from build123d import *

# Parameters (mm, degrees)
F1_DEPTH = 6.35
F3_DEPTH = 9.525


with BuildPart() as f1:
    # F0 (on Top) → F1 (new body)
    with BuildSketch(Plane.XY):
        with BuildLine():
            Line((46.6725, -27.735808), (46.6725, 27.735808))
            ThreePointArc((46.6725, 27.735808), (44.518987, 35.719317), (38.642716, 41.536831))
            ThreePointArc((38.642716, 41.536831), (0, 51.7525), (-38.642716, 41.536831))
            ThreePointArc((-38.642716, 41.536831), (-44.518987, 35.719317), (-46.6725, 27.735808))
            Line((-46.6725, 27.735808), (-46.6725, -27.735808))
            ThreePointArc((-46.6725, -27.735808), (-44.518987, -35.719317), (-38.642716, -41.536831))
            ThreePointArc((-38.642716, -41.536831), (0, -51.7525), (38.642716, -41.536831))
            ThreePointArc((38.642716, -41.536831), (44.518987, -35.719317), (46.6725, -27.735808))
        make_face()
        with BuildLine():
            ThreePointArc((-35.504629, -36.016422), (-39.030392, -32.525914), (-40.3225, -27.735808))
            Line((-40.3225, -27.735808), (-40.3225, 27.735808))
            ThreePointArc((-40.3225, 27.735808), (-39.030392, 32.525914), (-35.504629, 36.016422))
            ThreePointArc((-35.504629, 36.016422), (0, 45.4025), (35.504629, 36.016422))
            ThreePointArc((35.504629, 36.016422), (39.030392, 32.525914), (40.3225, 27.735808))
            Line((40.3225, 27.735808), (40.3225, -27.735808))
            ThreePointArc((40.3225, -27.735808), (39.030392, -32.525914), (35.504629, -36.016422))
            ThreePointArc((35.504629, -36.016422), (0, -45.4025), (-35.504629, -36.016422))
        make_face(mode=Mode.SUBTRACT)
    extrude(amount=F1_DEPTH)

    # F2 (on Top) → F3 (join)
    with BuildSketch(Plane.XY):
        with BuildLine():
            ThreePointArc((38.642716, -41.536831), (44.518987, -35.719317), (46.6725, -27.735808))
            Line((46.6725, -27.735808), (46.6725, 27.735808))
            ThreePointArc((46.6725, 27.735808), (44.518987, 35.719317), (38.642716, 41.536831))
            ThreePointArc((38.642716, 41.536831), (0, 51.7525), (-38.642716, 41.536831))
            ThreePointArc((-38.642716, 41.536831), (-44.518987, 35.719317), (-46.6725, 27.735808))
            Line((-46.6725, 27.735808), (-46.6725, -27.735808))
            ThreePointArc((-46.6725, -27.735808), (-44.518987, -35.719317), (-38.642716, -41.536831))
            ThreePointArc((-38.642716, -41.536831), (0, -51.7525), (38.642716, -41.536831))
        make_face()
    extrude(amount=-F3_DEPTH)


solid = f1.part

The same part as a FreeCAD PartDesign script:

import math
import FreeCAD as App
import Part
import Sketcher
from FreeCAD import Vector
Q = App.Units.Quantity

doc = App.newDocument("Part")
params = doc.addObject("Spreadsheet::Sheet", "Params")
for row, (alias, value) in enumerate([
    ("sketch1_radius", "0.6250001 in"),
    ("sketch1_radius2", "0.375 in"),
    ("pad1_length", "0.25 in"),
    ("sketch2_radius", "0.6250001 in"),
    ("pad2_length", "0.375 in"),
], start=1):
    params.set(f"A{row}", alias)
    params.set(f"B{row}", "=" + value)
    params.setAlias(f"B{row}", alias)

body = doc.addObject("PartDesign::Body", "Body")

# Sketch on XY plane
sketch1 = body.newObject("Sketcher::SketchObject", "Sketch")
sketch1.AttachmentSupport = (doc.getObject("XY_Plane"), [""])
sketch1.MapMode = "FlatFace"
sketch1.addGeometry([
    Part.LineSegment(Vector(47, -28, 0), Vector(47, 28, 0)),  # 0
    Part.ArcOfCircle(Part.Circle(Vector(31, 28, 0), Vector(0, 0, 1), 16), math.radians(0), math.radians(60)),  # 1
    Part.ArcOfCircle(Part.Circle(Vector(0, -26, 0), Vector(0, 0, 1), 78), math.radians(60), math.radians(120)),  # 2
    Part.ArcOfCircle(Part.Circle(Vector(-31, 28, 0), Vector(0, 0, 1), 16), math.radians(120), math.radians(180)),  # 3
    Part.LineSegment(Vector(-47, 28, 0), Vector(-47, -28, 0)),  # 4
    Part.ArcOfCircle(Part.Circle(Vector(-31, -28, 0), Vector(0, 0, 1), 16), math.radians(-180), math.radians(-120)),  # 5
    Part.ArcOfCircle(Part.Circle(Vector(0, 26, 0), Vector(0, 0, 1), 78), math.radians(-120), math.radians(-60)),  # 6
    Part.ArcOfCircle(Part.Circle(Vector(31, -28, 0), Vector(0, 0, 1), 16), math.radians(-60), math.radians(0)),  # 7
    Part.ArcOfCircle(Part.Circle(Vector(0, 26, 0), Vector(0, 0, 1), 72), math.radians(-120), math.radians(-60)),  # 8
    Part.ArcOfCircle(Part.Circle(Vector(-31, -28, 0), Vector(0, 0, 1), 10), math.radians(-180), math.radians(-120)),  # 9
    Part.LineSegment(Vector(-40, -28, 0), Vector(-40, 28, 0)),  # 10
    Part.ArcOfCircle(Part.Circle(Vector(-31, 28, 0), Vector(0, 0, 1), 10), math.radians(120), math.radians(180)),  # 11
    Part.ArcOfCircle(Part.Circle(Vector(0, -26, 0), Vector(0, 0, 1), 72), math.radians(60), math.radians(120)),  # 12
    Part.ArcOfCircle(Part.Circle(Vector(31, 28, 0), Vector(0, 0, 1), 10), math.radians(0), math.radians(60)),  # 13
    Part.LineSegment(Vector(40, 28, 0), Vector(40, -28, 0)),  # 14
    Part.ArcOfCircle(Part.Circle(Vector(31, -28, 0), Vector(0, 0, 1), 10), math.radians(-60), math.radians(0)),  # 15
], False)
sketch1.addConstraint([
    Sketcher.Constraint("Tangent", 0, 2, 1, 1),
    Sketcher.Constraint("Tangent", 1, 2, 2, 1),
    Sketcher.Constraint("Tangent", 2, 2, 3, 1),
    Sketcher.Constraint("Tangent", 3, 2, 4, 1),
    Sketcher.Constraint("Tangent", 4, 2, 5, 1),
    Sketcher.Constraint("Tangent", 5, 2, 6, 1),
    Sketcher.Constraint("Tangent", 6, 2, 7, 1),
    Sketcher.Constraint("Tangent", 7, 2, 0, 1),
    Sketcher.Constraint("Tangent", 8, 1, 9, 2),
    Sketcher.Constraint("Tangent", 9, 1, 10, 1),
    Sketcher.Constraint("Tangent", 10, 2, 11, 2),
    Sketcher.Constraint("Tangent", 11, 1, 12, 2),
    Sketcher.Constraint("Tangent", 12, 1, 13, 2),
    Sketcher.Constraint("Tangent", 13, 1, 14, 1),
    Sketcher.Constraint("Tangent", 14, 2, 15, 2),
    Sketcher.Constraint("Tangent", 15, 1, 8, 2),
    Sketcher.Constraint("Vertical", 0),
    Sketcher.Constraint("Vertical", 4),
    Sketcher.Constraint("Vertical", 10),
    Sketcher.Constraint("Vertical", 14),
    Sketcher.Constraint("Coincident", 8, 3, 6, 3),
    Sketcher.Constraint("Coincident", 9, 3, 5, 3),
    Sketcher.Constraint("Coincident", 11, 3, 3, 3),
    Sketcher.Constraint("Coincident", 12, 3, 2, 3),
    Sketcher.Constraint("Coincident", 13, 3, 1, 3),
    Sketcher.Constraint("Equal", 1, 3),
    Sketcher.Constraint("Equal", 3, 5),
    Sketcher.Constraint("Equal", 2, 6),
    Sketcher.Constraint("Equal", 5, 7),
    Sketcher.Constraint("Equal", 13, 15),
    Sketcher.Constraint("Symmetric", 1, 3, 5, 3, -1, 1),
    Sketcher.Constraint("Symmetric", 2, 3, 6, 3, -1),
    Sketcher.Constraint("Radius", 1, Q("0.6250001 in")),
    Sketcher.Constraint("Radius", 9, Q("0.375 in")),
    Sketcher.Constraint("DistanceX", 9, 3, 7, 3, Q("2.4249998 in")),
    Sketcher.Constraint("Radius", 2, 78.194555),
    Sketcher.Constraint("DistanceY", 0, 1, 0, 2, 55.471616),
])
sketch1.setExpression("Constraints[32]", "Params.sketch1_radius")
sketch1.setExpression("Constraints[33]", "Params.sketch1_radius2")
pad1 = body.newObject("PartDesign::Pad", "Pad")
pad1.Profile = sketch1
pad1.setExpression("Length", "Params.pad1_length")

# Sketch on XY plane
sketch2 = body.newObject("Sketcher::SketchObject", "Sketch001")
sketch2.AttachmentSupport = (doc.getObject("XY_Plane"), [""])
sketch2.MapMode = "FlatFace"
sketch2.addGeometry([
    Part.ArcOfCircle(Part.Circle(Vector(31, -28, 0), Vector(0, 0, 1), 16), math.radians(-60), math.radians(0)),  # 0
    Part.LineSegment(Vector(47, -28, 0), Vector(47, 28, 0)),  # 1
    Part.ArcOfCircle(Part.Circle(Vector(31, 28, 0), Vector(0, 0, 1), 16), math.radians(0), math.radians(60)),  # 2
    Part.ArcOfCircle(Part.Circle(Vector(0, -26, 0), Vector(0, 0, 1), 78), math.radians(60), math.radians(120)),  # 3
    Part.ArcOfCircle(Part.Circle(Vector(-31, 28, 0), Vector(0, 0, 1), 16), math.radians(120), math.radians(180)),  # 4
    Part.LineSegment(Vector(-47, 28, 0), Vector(-47, -28, 0)),  # 5
    Part.ArcOfCircle(Part.Circle(Vector(-31, -28, 0), Vector(0, 0, 1), 16), math.radians(-180), math.radians(-120)),  # 6
    Part.ArcOfCircle(Part.Circle(Vector(0, 26, 0), Vector(0, 0, 1), 78), math.radians(-120), math.radians(-60)),  # 7
], False)
sketch2.addConstraint([
    Sketcher.Constraint("Tangent", 0, 2, 1, 1),
    Sketcher.Constraint("Tangent", 1, 2, 2, 1),
    Sketcher.Constraint("Tangent", 2, 2, 3, 1),
    Sketcher.Constraint("Tangent", 3, 2, 4, 1),
    Sketcher.Constraint("Tangent", 4, 2, 5, 1),
    Sketcher.Constraint("Tangent", 5, 2, 6, 1),
    Sketcher.Constraint("Tangent", 6, 2, 7, 1),
    Sketcher.Constraint("Tangent", 7, 2, 0, 1),
    Sketcher.Constraint("Vertical", 1),
    Sketcher.Constraint("Vertical", 5),
    Sketcher.Constraint("Equal", 0, 2),
    Sketcher.Constraint("Equal", 2, 4),
    Sketcher.Constraint("Equal", 4, 6),
    Sketcher.Constraint("Equal", 3, 7),
    Sketcher.Constraint("Symmetric", 0, 3, 4, 3, -1, 1),
    Sketcher.Constraint("Symmetric", 3, 3, 7, 3, -1),
    Sketcher.Constraint("Radius", 0, Q("0.6250001 in")),
    Sketcher.Constraint("DistanceX", 6, 3, 0, 2, Q("3.0499999 in")),
    Sketcher.Constraint("Radius", 3, 78.194555),
    Sketcher.Constraint("DistanceY", 1, 1, 1, 2, 55.471616),
])
sketch2.setExpression("Constraints[16]", "Params.sketch2_radius")
pad2 = body.newObject("PartDesign::Pad", "Pad001")
pad2.Profile = sketch2
pad2.setExpression("Length", "Params.pad2_length")
pad2.Reversed = True

doc.recompute()
